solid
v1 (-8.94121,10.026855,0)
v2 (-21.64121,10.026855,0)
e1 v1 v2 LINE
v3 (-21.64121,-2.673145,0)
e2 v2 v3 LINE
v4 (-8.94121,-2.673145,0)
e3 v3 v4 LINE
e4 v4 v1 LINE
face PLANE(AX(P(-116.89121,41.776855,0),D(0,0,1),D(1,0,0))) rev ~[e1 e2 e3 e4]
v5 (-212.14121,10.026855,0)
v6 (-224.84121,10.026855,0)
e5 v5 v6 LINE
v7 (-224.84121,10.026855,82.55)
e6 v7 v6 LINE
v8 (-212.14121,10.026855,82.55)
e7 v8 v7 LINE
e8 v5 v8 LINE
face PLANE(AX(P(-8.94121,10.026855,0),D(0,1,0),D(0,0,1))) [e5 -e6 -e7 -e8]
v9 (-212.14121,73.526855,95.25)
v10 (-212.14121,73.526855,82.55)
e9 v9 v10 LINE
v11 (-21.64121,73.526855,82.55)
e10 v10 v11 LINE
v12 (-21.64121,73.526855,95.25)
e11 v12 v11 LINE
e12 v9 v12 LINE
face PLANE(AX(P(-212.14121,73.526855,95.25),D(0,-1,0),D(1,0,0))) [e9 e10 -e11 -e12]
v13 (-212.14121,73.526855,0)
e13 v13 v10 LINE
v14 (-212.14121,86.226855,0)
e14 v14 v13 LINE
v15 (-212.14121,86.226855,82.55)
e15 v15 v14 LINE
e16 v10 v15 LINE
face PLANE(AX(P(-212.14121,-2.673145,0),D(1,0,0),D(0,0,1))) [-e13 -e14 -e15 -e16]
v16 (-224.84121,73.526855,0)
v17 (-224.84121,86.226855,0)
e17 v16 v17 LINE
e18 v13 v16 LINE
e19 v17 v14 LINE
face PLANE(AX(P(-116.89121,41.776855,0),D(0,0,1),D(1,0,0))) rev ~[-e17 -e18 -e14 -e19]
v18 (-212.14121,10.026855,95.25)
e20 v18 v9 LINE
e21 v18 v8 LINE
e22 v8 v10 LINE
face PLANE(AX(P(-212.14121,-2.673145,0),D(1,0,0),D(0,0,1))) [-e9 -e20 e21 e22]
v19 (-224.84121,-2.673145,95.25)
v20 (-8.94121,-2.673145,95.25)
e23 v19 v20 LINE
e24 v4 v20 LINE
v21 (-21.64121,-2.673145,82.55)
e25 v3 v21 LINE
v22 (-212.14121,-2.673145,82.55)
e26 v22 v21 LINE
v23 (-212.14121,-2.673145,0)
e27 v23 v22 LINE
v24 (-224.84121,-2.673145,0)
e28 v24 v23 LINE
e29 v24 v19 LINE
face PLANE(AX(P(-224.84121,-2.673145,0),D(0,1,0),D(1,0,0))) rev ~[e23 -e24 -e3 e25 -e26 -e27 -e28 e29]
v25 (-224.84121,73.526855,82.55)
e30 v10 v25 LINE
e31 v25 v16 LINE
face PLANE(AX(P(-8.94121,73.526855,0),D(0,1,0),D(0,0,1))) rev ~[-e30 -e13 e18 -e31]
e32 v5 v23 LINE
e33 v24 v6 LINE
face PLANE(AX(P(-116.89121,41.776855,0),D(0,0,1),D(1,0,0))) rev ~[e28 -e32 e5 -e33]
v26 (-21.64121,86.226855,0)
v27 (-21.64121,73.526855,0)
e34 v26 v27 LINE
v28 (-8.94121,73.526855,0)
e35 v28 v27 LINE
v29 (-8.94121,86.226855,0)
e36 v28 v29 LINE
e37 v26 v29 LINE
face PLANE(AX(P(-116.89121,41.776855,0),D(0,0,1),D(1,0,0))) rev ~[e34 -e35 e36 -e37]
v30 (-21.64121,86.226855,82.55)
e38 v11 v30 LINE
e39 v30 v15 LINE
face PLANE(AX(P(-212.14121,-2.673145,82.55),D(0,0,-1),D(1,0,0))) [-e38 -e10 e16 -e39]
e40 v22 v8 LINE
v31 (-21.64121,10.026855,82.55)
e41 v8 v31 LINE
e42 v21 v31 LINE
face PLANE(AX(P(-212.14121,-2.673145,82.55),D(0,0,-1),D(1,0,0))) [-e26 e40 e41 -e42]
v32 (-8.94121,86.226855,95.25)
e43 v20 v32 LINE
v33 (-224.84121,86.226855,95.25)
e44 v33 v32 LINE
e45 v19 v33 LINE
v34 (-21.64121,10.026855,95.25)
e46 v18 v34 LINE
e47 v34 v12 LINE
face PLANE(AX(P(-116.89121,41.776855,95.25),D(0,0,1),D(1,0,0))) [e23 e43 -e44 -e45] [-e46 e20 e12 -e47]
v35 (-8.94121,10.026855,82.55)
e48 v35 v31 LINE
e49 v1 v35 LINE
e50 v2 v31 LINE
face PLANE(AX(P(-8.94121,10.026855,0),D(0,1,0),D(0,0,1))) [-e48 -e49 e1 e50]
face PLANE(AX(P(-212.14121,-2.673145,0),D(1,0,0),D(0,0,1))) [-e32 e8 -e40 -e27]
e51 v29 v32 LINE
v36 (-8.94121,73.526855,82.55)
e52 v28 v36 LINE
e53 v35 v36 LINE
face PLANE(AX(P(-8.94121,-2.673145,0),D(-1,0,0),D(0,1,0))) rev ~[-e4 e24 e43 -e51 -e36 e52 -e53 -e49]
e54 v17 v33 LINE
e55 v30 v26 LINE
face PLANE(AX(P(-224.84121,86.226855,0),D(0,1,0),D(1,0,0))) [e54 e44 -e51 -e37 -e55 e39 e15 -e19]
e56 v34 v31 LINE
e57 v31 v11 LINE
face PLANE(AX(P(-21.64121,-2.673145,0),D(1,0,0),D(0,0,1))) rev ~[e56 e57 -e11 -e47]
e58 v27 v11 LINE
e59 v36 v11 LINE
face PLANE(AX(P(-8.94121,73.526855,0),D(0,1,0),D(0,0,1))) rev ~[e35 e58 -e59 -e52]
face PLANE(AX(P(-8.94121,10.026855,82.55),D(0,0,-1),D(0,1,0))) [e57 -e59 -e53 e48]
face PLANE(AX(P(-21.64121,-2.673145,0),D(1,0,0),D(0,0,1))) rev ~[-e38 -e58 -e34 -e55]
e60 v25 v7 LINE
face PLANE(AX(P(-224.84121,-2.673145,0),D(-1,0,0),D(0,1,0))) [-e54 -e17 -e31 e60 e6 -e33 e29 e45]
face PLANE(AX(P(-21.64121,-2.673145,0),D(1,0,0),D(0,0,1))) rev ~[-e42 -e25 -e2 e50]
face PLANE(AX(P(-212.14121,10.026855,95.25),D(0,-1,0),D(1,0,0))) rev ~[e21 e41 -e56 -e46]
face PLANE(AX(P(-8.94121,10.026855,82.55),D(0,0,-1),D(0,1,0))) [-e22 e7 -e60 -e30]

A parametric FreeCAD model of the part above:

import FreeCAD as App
import Part
import Sketcher
from FreeCAD import Vector
Q = App.Units.Quantity


def add_polygon(sketch, points):
    """Adds a closed chain of lines whose ends are joined by coincident constraints."""
    first, n = sketch.GeometryCount, len(points)
    for a, b in zip(points, points[1:] + points[:1]):
        sketch.addGeometry(Part.LineSegment(App.Vector(*a, 0), App.Vector(*b, 0)), False)
    for i in range(n):
        sketch.addConstraint(Sketcher.Constraint("Coincident", first + i, 2, first + (i + 1) % n, 1))

doc = App.newDocument("Part")
body = doc.addObject("PartDesign::Body", "Body")

# Sketch on XY plane
sketch1 = body.newObject("Sketcher::SketchObject", "Sketch")
sketch1.AttachmentSupport = (doc.getObject("XY_Plane"), [""])
sketch1.MapMode = "FlatFace"
add_polygon(sketch1, [(-225, 86), (-225, -3), (-9, -3), (-9, 86)])  # lines 0-3
sketch1.addConstraint([
    Sketcher.Constraint("Vertical", 0),
    Sketcher.Constraint("Horizontal", 1),
    Sketcher.Constraint("Vertical", 2),
    Sketcher.Constraint("Horizontal", 3),
    Sketcher.Constraint("DistanceX", 1, 1, 1, 2, Q("8.5 in")),
    Sketcher.Constraint("DistanceY", 0, 2, 0, 1, Q("3.5 in")),
    Sketcher.Constraint("DistanceX", 0, 2, -1, 1, 224.84121),
    Sketcher.Constraint("DistanceY", 0, 2, -1, 1, 2.673145),
])
pad1 = body.newObject("PartDesign::Pad", "Pad")
pad1.Profile = sketch1
pad1.Length = Q("3.75 in")

# Sketch on XY plane
sketch2 = body.newObject("Sketcher::SketchObject", "Sketch001")
sketch2.AttachmentSupport = (doc.getObject("XY_Plane"), [""])
sketch2.MapMode = "FlatFace"
sketch2.AttachmentOffset = App.Placement(Vector(0, 0, 3.75 * 25.4), App.Rotation())
add_polygon(sketch2, [(-212, 74), (-212, 10), (-22, 10), (-22, 74)])  # lines 0-3
sketch2.addConstraint([
    Sketcher.Constraint("Vertical", 0),
    Sketcher.Constraint("Horizontal", 1),
    Sketcher.Constraint("Vertical", 2),
    Sketcher.Constraint("Horizontal", 3),
    Sketcher.Constraint("DistanceX", 1, 1, 1, 2, Q("7.5 in")),
    Sketcher.Constraint("DistanceY", 0, 2, 0, 1, Q("2.5 in")),
    Sketcher.Constraint("DistanceX", 0, 2, -1, 1, 212.14121),
    Sketcher.Constraint("DistanceY", -1, 1, 0, 2, 10.026855),
])
pocket1 = body.newObject("PartDesign::Pocket", "Pocket")
pocket1.Profile = sketch2
pocket1.Type = "ThroughAll"

# Sketch on XZ plane
sketch3 = body.newObject("Sketcher::SketchObject", "Sketch002")
sketch3.AttachmentSupport = (doc.getObject("XZ_Plane"), [""])
sketch3.MapMode = "FlatFace"
sketch3.AttachmentOffset = App.Placement(Vector(0, 0, 2.673145), App.Rotation())
add_polygon(sketch3, [(-212, 83), (-212, 0), (-22, 0), (-22, 83)])  # lines 0-3
sketch3.addConstraint([
    Sketcher.Constraint("Vertical", 0),
    Sketcher.Constraint("Horizontal", 1),
    Sketcher.Constraint("Vertical", 2),
    Sketcher.Constraint("Horizontal", 3),
    Sketcher.Constraint("PointOnObject", 0, 2, -1),
    Sketcher.Constraint("DistanceX", 1, 1, 1, 2, Q("7.5 in")),
    Sketcher.Constraint("DistanceY", 0, 2, 0, 1, Q("3.25 in")),
    Sketcher.Constraint("DistanceX", 0, 2, -1, 1, 212.14121),
])
pocket2 = body.newObject("PartDesign::Pocket", "Pocket001")
pocket2.Profile = sketch3
pocket2.Type = "ThroughAll"

# Sketch on YZ plane
sketch4 = body.newObject("Sketcher::SketchObject", "Sketch003")
sketch4.AttachmentSupport = (doc.getObject("YZ_Plane"), [""])
sketch4.MapMode = "FlatFace"
sketch4.AttachmentOffset = App.Placement(Vector(0, 0, -8.94121), App.Rotation())
add_polygon(sketch4, [(10, 83), (10, 0), (74, 0), (74, 83)])  # lines 0-3
sketch4.addConstraint([
    Sketcher.Constraint("Vertical", 0),
    Sketcher.Constraint("Horizontal", 1),
    Sketcher.Constraint("Vertical", 2),
    Sketcher.Constraint("Horizontal", 3),
    Sketcher.Constraint("PointOnObject", 0, 2, -1),
    Sketcher.Constraint("DistanceX", 1, 1, 1, 2, Q("2.5 in")),
    Sketcher.Constraint("DistanceY", 0, 2, 0, 1, Q("3.25 in")),
    Sketcher.Constraint("DistanceX", -1, 1, 0, 2, 10.026855),
])
pocket3 = body.newObject("PartDesign::Pocket", "Pocket002")
pocket3.Profile = sketch4
pocket3.Type = "ThroughAll"

doc.recompute()
